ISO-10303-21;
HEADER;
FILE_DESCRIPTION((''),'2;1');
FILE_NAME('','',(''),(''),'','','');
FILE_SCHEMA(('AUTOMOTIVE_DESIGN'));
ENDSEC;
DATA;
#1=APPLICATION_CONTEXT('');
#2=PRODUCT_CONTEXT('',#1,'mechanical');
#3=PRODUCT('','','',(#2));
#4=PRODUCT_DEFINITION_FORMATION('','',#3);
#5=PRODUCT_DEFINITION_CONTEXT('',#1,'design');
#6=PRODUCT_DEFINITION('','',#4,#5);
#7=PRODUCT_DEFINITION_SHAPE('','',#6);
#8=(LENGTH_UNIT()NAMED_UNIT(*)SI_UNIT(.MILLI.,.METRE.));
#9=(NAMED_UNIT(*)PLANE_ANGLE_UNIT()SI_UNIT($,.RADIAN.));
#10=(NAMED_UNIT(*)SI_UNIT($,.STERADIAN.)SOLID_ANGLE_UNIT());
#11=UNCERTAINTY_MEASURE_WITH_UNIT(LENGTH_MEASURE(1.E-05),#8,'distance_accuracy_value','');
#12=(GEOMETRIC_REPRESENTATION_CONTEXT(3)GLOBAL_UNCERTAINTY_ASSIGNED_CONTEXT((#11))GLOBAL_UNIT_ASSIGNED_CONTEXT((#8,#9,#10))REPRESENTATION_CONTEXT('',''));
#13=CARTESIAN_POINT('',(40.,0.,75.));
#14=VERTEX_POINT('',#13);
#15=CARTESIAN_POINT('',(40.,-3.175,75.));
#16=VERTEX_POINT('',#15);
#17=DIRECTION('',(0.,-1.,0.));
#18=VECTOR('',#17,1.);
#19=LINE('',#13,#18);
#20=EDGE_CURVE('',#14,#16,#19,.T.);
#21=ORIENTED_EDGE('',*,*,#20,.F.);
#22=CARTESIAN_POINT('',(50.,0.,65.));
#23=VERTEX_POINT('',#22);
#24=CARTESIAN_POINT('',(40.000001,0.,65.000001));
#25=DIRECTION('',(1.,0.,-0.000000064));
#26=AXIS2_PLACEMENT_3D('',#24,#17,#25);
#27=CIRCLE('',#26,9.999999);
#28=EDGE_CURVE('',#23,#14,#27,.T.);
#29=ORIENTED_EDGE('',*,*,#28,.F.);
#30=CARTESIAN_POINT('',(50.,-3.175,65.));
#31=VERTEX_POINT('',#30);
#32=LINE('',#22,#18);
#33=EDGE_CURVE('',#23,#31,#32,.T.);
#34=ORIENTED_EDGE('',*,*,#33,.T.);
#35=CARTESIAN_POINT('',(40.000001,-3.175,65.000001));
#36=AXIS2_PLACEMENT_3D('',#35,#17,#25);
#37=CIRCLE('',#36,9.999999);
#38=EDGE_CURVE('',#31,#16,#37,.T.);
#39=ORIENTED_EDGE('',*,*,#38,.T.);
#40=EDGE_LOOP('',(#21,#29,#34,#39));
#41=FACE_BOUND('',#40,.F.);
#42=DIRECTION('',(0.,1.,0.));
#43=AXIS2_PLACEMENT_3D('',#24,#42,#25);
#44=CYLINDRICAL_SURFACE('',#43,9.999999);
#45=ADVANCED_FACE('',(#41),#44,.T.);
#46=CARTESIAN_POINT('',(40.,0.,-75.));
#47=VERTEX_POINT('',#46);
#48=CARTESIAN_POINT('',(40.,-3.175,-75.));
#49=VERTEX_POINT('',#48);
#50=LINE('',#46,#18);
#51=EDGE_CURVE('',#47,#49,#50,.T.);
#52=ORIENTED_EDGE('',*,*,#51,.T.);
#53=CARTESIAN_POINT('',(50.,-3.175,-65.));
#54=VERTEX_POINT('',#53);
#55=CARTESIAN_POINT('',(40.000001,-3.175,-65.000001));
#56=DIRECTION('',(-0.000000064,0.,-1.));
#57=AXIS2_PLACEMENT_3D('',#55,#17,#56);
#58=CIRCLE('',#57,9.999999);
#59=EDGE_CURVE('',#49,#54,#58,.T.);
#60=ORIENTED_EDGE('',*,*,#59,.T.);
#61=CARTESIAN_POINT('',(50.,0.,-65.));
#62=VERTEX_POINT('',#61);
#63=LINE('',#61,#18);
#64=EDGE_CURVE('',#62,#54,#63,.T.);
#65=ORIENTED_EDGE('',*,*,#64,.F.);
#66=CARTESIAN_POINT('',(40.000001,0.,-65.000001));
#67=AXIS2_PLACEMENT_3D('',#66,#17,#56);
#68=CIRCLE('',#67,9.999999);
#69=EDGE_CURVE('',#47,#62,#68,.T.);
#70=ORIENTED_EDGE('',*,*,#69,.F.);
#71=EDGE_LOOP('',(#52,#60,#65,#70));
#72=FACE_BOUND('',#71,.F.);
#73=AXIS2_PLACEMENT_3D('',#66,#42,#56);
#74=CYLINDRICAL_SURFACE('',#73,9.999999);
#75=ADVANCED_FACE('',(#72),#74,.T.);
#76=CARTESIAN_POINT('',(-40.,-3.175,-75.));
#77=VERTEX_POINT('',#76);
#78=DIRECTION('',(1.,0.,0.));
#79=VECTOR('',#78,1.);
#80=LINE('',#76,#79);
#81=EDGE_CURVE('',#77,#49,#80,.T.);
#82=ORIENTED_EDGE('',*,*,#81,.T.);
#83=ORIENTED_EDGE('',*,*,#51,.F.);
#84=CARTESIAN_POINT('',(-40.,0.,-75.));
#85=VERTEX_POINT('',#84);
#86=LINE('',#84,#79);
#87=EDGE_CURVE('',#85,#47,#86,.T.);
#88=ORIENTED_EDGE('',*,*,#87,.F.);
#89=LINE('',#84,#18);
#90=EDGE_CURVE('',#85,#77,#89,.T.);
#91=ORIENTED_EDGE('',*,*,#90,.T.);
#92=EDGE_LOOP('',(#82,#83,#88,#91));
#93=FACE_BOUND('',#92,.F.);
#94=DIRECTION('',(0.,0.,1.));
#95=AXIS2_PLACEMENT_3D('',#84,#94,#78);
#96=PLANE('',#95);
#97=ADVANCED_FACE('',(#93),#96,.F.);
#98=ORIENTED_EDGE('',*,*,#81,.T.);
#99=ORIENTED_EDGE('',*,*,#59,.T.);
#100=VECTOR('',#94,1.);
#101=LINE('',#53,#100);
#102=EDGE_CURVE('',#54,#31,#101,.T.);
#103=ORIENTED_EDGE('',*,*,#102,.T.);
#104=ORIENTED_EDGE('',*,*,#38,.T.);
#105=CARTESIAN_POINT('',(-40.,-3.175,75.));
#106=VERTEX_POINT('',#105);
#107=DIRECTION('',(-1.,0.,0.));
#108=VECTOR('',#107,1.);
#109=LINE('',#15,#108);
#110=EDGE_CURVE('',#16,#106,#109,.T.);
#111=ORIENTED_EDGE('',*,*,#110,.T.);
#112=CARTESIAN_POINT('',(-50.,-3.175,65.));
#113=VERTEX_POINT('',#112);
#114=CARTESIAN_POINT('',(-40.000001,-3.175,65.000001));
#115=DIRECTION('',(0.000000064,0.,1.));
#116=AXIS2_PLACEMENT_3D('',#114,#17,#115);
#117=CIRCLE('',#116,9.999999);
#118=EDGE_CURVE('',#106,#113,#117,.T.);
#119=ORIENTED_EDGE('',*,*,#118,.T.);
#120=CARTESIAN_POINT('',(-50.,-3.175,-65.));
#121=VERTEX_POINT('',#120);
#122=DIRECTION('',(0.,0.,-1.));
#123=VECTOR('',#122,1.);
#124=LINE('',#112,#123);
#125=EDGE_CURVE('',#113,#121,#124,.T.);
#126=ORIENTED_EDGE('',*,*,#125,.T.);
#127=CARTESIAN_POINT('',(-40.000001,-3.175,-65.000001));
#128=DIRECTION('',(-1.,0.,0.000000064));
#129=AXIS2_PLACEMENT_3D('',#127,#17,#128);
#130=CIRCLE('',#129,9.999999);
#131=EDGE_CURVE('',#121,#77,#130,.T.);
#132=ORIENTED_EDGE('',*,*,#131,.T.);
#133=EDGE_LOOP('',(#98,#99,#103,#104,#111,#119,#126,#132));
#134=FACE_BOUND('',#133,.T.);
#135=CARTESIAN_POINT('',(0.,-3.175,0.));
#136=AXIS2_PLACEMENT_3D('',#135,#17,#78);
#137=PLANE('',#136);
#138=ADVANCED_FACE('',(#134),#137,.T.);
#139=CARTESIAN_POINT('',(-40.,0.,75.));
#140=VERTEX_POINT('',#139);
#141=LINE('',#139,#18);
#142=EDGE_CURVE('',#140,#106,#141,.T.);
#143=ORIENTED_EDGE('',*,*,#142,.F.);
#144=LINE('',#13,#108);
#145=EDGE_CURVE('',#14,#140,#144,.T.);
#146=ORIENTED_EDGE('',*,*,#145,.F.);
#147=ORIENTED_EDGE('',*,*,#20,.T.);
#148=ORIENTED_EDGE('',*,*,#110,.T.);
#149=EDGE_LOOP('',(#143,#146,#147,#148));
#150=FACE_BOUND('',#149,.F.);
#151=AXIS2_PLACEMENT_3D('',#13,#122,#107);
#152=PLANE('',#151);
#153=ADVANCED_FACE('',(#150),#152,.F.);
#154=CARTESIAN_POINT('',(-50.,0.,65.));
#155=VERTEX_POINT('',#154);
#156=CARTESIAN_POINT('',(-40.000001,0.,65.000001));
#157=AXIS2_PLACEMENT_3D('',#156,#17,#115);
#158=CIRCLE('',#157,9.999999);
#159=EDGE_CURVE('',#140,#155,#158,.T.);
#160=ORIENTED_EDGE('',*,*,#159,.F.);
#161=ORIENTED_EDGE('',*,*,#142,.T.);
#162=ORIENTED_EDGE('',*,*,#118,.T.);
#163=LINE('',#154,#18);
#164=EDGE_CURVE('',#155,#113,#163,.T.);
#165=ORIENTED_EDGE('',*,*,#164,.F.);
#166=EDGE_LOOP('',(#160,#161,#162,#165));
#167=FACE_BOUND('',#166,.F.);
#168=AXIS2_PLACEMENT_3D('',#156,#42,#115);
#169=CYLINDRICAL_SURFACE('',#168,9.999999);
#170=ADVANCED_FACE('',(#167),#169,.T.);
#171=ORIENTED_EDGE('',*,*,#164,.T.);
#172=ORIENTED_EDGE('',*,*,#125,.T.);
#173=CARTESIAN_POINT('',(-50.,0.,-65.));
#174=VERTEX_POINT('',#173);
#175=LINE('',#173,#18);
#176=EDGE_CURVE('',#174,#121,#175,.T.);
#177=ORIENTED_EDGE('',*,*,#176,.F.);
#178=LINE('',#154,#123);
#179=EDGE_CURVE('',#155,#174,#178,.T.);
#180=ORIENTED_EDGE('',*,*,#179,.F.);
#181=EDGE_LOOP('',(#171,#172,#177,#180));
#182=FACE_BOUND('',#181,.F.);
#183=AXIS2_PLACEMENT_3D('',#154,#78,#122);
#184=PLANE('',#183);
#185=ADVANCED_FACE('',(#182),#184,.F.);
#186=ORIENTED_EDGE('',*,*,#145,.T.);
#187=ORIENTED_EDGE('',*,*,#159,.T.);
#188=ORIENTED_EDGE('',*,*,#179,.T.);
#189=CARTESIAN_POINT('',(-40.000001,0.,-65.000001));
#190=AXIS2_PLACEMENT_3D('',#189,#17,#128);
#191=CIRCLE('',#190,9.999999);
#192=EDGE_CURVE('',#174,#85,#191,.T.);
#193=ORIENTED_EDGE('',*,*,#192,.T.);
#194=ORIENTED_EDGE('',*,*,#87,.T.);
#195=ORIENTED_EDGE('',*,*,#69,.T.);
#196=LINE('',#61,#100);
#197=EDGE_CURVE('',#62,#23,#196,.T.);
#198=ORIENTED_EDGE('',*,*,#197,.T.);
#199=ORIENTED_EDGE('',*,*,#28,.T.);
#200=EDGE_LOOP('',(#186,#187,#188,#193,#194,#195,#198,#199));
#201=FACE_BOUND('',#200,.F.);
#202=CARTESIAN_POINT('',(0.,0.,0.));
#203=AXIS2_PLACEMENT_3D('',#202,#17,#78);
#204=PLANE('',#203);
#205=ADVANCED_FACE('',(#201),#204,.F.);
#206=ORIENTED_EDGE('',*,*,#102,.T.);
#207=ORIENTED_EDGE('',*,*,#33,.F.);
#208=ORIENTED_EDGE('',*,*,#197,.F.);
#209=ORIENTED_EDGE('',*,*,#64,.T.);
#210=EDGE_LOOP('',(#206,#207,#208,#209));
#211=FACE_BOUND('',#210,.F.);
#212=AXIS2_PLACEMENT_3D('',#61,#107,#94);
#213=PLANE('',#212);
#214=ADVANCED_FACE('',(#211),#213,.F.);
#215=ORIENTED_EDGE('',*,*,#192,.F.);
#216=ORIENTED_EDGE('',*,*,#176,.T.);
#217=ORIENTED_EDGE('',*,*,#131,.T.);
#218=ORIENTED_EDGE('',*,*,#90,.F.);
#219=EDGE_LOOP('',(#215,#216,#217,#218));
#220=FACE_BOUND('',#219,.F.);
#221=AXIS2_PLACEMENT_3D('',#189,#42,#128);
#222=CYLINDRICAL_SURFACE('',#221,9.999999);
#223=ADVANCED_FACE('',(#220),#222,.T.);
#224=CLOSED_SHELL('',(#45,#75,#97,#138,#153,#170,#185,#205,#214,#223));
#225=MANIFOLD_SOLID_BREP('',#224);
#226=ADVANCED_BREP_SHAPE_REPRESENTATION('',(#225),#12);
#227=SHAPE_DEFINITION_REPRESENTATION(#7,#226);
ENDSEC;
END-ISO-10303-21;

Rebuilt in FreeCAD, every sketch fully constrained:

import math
import FreeCAD as App
import Part
import Sketcher

V = App.Vector

doc = App.newDocument("Part")
params = doc.addObject("Spreadsheet::Sheet", "Params")
for row, (alias, value) in enumerate([
    ("sketch1_radius", "9.999999 mm"),
    ("sketch1_width", "80 mm"),
    ("sketch1_height", "130 mm"),
    ("pad1_length", "3.175 mm"),
], start=1):
    params.set(f"A{row}", alias)
    params.set(f"B{row}", "=" + value)
    params.setAlias(f"B{row}", alias)

body = doc.addObject("PartDesign::Body", "Body")

sketch1 = doc.addObject("Sketcher::SketchObject", "Sketch")
body.addObject(sketch1)
sketch1.AttachmentSupport = (doc.XZ_Plane, [""])
sketch1.MapMode = "FlatFace"
sketch1.addGeometry(Part.LineSegment(V(40, 75, 0), V(-40, 75, 0)), False)
sketch1.addGeometry(Part.ArcOfCircle(Part.Circle(V(-40.000001, 65.000001, 0), V(0, 0, 1), 9.999999), math.radians(89.999996), math.radians(180.000004)), False)
sketch1.addGeometry(Part.LineSegment(V(-50, 65, 0), V(-50, -65, 0)), False)
sketch1.addGeometry(Part.ArcOfCircle(Part.Circle(V(-40.000001, -65.000001, 0), V(0, 0, 1), 9.999999), math.radians(179.999996), math.radians(270.000004)), False)
sketch1.addGeometry(Part.LineSegment(V(-40, -75, 0), V(40, -75, 0)), False)
sketch1.addGeometry(Part.ArcOfCircle(Part.Circle(V(40.000001, -65.000001, 0), V(0, 0, 1), 9.999999), math.radians(-90.000004), math.radians(0.000004)), False)
sketch1.addGeometry(Part.LineSegment(V(50, -65, 0), V(50, 65, 0)), False)
sketch1.addGeometry(Part.ArcOfCircle(Part.Circle(V(40.000001, 65.000001, 0), V(0, 0, 1), 9.999999), math.radians(-0.000004), math.radians(90.000004)), False)
sketch1.addConstraint(Sketcher.Constraint("Tangent", 0, 2, 1, 1))
sketch1.addConstraint(Sketcher.Constraint("Tangent", 1, 2, 2, 1))
sketch1.addConstraint(Sketcher.Constraint("Tangent", 2, 2, 3, 1))
sketch1.addConstraint(Sketcher.Constraint("Tangent", 3, 2, 4, 1))
sketch1.addConstraint(Sketcher.Constraint("Tangent", 4, 2, 5, 1))
sketch1.addConstraint(Sketcher.Constraint("Tangent", 5, 2, 6, 1))
sketch1.addConstraint(Sketcher.Constraint("Tangent", 6, 2, 7, 1))
sketch1.addConstraint(Sketcher.Constraint("Tangent", 7, 2, 0, 1))
sketch1.addConstraint(Sketcher.Constraint("Horizontal", 0))
sketch1.addConstraint(Sketcher.Constraint("Vertical", 2))
sketch1.addConstraint(Sketcher.Constraint("Horizontal", 4))
sketch1.addConstraint(Sketcher.Constraint("Vertical", 6))
sketch1.addConstraint(Sketcher.Constraint("Equal", 1, 3))
sketch1.addConstraint(Sketcher.Constraint("Equal", 3, 5))
sketch1.addConstraint(Sketcher.Constraint("Equal", 5, 7))
sketch1.addConstraint(Sketcher.Constraint("Symmetric", 1, 3, 5, 3, -1, 1))
sketch1.addConstraint(Sketcher.Constraint("Radius", 1, 9.999999))
sketch1.addConstraint(Sketcher.Constraint("DistanceX", 0, 2, 0, 1, 80.0))
sketch1.addConstraint(Sketcher.Constraint("DistanceY", 2, 2, 2, 1, 130.0))
sketch1.setExpression("Constraints[16]", "Params.sketch1_radius")
sketch1.setExpression("Constraints[17]", "Params.sketch1_width")
sketch1.setExpression("Constraints[18]", "Params.sketch1_height")
pad1 = doc.addObject("PartDesign::Pad", "Pad")
body.addObject(pad1)
pad1.Profile = sketch1
pad1.setExpression("Length", "Params.pad1_length")

doc.recompute()
